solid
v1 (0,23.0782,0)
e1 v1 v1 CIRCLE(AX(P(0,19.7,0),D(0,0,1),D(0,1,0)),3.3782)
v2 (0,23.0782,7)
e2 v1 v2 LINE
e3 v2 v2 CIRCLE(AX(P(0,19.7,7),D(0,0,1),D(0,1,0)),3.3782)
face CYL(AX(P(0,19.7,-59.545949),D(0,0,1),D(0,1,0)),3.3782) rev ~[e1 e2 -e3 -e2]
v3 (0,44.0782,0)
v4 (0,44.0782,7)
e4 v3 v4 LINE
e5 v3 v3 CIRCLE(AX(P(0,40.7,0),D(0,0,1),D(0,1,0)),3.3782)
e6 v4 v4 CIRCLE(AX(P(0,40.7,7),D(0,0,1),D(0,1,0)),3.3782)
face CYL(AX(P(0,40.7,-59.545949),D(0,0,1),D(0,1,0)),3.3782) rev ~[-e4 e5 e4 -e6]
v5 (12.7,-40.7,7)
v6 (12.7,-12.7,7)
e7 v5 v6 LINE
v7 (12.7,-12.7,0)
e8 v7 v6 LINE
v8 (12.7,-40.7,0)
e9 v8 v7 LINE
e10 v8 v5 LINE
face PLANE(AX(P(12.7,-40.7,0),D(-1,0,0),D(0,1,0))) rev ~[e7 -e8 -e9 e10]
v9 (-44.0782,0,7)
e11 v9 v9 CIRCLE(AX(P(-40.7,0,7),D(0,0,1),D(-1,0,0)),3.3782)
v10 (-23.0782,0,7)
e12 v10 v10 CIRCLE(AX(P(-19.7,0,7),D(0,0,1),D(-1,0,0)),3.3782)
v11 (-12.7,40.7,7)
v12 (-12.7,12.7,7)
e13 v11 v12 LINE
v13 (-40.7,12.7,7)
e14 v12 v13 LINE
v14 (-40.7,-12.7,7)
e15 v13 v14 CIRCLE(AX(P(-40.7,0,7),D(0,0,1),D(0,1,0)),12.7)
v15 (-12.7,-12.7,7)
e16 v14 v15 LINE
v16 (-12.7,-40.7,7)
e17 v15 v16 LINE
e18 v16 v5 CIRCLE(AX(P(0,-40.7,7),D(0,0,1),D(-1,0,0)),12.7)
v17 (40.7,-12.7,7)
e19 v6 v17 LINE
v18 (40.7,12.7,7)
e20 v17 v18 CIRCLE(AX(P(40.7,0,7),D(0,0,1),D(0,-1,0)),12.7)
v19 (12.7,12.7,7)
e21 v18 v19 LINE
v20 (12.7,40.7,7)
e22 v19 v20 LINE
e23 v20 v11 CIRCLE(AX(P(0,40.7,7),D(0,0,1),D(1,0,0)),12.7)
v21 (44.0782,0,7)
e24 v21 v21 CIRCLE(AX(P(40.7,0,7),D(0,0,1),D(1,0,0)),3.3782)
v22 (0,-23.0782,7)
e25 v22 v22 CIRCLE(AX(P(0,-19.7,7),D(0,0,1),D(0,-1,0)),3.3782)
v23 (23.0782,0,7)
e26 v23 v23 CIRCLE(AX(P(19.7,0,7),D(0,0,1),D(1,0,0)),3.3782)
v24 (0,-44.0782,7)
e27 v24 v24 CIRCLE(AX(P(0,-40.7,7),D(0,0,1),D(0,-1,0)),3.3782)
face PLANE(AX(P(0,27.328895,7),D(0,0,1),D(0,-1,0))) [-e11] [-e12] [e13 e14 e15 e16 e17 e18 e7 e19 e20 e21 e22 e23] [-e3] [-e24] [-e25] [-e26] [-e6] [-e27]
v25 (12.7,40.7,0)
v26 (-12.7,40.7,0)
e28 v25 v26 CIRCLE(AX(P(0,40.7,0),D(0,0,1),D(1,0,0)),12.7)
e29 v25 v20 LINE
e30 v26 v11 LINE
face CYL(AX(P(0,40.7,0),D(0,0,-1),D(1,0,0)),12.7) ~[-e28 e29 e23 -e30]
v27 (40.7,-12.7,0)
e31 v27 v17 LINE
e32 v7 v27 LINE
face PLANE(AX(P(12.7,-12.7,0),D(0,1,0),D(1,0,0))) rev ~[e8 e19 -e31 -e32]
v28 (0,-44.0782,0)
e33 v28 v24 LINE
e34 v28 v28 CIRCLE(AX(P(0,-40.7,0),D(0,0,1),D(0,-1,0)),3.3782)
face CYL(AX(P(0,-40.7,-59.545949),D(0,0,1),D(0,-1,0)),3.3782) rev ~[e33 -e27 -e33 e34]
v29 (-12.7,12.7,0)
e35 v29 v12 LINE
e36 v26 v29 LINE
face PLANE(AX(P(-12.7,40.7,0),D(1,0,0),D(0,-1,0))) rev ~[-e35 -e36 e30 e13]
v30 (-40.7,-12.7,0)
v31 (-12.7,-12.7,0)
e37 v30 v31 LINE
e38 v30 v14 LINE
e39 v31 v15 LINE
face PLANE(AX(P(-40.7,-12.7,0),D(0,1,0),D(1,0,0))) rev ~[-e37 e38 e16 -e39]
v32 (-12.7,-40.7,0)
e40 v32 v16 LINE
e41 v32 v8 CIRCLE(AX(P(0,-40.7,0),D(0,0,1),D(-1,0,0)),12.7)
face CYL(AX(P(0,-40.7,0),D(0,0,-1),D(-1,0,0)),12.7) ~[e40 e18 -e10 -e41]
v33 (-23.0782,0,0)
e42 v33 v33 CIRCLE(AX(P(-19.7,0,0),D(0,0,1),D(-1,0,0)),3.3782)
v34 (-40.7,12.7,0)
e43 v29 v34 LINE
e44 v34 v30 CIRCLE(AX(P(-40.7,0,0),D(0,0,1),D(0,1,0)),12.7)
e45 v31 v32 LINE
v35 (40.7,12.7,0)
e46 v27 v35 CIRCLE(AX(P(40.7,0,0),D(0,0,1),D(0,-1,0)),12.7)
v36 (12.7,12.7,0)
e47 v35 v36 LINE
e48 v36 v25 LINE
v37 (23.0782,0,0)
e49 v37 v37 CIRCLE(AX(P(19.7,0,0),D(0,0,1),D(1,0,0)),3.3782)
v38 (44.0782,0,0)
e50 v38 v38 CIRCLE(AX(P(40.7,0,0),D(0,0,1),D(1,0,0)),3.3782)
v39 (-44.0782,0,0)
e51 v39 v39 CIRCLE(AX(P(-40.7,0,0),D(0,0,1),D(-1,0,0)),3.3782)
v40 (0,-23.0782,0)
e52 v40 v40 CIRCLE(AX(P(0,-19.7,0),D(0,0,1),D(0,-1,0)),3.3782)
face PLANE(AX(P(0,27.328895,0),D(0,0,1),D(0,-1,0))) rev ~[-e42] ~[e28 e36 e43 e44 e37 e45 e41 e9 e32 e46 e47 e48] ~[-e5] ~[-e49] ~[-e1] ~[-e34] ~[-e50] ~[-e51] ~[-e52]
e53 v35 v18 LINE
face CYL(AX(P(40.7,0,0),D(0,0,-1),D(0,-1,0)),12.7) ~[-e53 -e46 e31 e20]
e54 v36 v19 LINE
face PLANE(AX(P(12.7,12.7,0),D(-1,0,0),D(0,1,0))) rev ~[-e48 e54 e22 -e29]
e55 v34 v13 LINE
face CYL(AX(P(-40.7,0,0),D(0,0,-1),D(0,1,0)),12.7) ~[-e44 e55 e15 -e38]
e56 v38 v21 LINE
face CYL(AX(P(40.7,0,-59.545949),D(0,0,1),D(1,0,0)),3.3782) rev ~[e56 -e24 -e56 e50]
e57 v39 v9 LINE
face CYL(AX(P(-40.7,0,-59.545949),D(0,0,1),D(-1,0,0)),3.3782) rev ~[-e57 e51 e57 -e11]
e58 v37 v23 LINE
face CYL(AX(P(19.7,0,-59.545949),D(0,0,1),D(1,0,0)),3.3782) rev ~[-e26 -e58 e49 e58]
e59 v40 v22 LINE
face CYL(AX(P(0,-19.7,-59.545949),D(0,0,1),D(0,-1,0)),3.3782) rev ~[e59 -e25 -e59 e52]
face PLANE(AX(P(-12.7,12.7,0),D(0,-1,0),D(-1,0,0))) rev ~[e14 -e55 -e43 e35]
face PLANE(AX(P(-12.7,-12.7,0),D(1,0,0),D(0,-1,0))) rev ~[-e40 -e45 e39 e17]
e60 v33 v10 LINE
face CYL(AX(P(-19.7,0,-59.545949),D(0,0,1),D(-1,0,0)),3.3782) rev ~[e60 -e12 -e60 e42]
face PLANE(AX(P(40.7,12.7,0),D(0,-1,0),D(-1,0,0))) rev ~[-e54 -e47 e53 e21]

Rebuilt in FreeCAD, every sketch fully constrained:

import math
import FreeCAD as App
import Part
import Sketcher
from FreeCAD import Vector
Q = App.Units.Quantity

doc = App.newDocument("Part")
body = doc.addObject("PartDesign::Body", "Body")

# Sketch on XY plane
sketch1 = body.newObject("Sketcher::SketchObject", "Sketch")
sketch1.AttachmentSupport = (doc.getObject("XY_Plane"), [""])
sketch1.MapMode = "FlatFace"
sketch1.addGeometry(Part.ArcOfCircle(Part.Circle(Vector(-40.7, 0, 0), Vector(0, 0, 1), 12.7), math.radians(90), math.radians(270)), False)
sketch1.addGeometry(Part.LineSegment(Vector(-40.7, -12.7, 0), Vector(-12.7, -12.7, 0)), False)
sketch1.addGeometry(Part.LineSegment(Vector(-12.7, -12.7, 0), Vector(0, 0, 0)), False)
sketch1.addGeometry(Part.LineSegment(Vector(0, 0, 0), Vector(-12.7, 12.7, 0)), False)
sketch1.addGeometry(Part.LineSegment(Vector(-12.7, 12.7, 0), Vector(-40.7, 12.7, 0)), False)
sketch1.addConstraint(Sketcher.Constraint("Tangent", 0, 2, 1, 1))
sketch1.addConstraint(Sketcher.Constraint("Coincident", 1, 2, 2, 1))
sketch1.addConstraint(Sketcher.Constraint("Coincident", 2, 2, 3, 1))
sketch1.addConstraint(Sketcher.Constraint("Coincident", 3, 2, 4, 1))
sketch1.addConstraint(Sketcher.Constraint("Tangent", 4, 2, 0, 1))
sketch1.addConstraint(Sketcher.Constraint("Horizontal", 1))
sketch1.addConstraint(Sketcher.Constraint("Horizontal", 4))
sketch1.addConstraint(Sketcher.Constraint("Coincident", 2, 2, -1, 1))
sketch1.addConstraint(Sketcher.Constraint("Symmetric", 1, 2, 3, 2, -1))
sketch1.addConstraint(Sketcher.Constraint("Perpendicular", 2, 3))
sketch1.addConstraint(Sketcher.Constraint("Radius", 0, Q("12.7 mm")))
sketch1.addConstraint(Sketcher.Constraint("DistanceX", 1, 1, 1, 2, Q("28 mm")))
pad1 = body.newObject("PartDesign::Pad", "Pad")
pad1.Profile = sketch1
pad1.Length = 7

# Sketch on XY plane
sketch2 = body.newObject("Sketcher::SketchObject", "Sketch001")
sketch2.AttachmentSupport = (doc.getObject("XY_Plane"), [""])
sketch2.MapMode = "FlatFace"
sketch2.addGeometry(Part.Circle(Vector(-40.7, 0, 0), Vector(0, 0, 1), 3.3782), False)
sketch2.addGeometry(Part.Circle(Vector(-19.7, 0, 0), Vector(0, 0, 1), 3.3782), False)
sketch2.addConstraint(Sketcher.Constraint("Equal", 0, 1))
sketch2.addConstraint(Sketcher.Constraint("PointOnObject", 0, 3, -1))
sketch2.addConstraint(Sketcher.Constraint("PointOnObject", 1, 3, -1))
sketch2.addConstraint(Sketcher.Constraint("DistanceX", 0, 3, 1, 3, Q("21 mm")))
sketch2.addConstraint(Sketcher.Constraint("Diameter", 0, Q("6.7564 mm")))
sketch2.addConstraint(Sketcher.Constraint("DistanceX", 0, 3, -1, 1, Q("40.7 mm")))
doc.recompute()
hole = body.newObject("PartDesign::Hole", "Hole")
hole.Profile = sketch2
hole.ThreadType = "None"
hole.Diameter = 6.7564
hole.DepthType = "ThroughAll"
hole.Reversed = True
body2 = doc.addObject("PartDesign::Body", "Body001")
doc.recompute()

body2.BaseFeature = body
doc.recompute()

body3 = doc.addObject("PartDesign::Body", "Body002")
body3.BaseFeature = body
body3.Placement = App.Placement(Vector(0, 0, 0), App.Rotation(Vector(0, 0, 1), 90))
boolean = body2.newObject("PartDesign::Boolean", "Boolean")
boolean.Type = "Fuse"
boolean.addObjects([body3])
doc.recompute()

body4 = doc.addObject("PartDesign::Body", "Body003")
body4.BaseFeature = body
body4.Placement = App.Placement(Vector(0, 0, 0), App.Rotation(Vector(0, 0, 1), 180))
boolean2 = body2.newObject("PartDesign::Boolean", "Boolean001")
boolean2.Type = "Fuse"
boolean2.addObjects([body4])
doc.recompute()

body.Placement = App.Placement(Vector(0, 0, 0), App.Rotation(Vector(0, 0, 1), 270))
boolean3 = body2.newObject("PartDesign::Boolean", "Boolean002")
boolean3.Type = "Fuse"
boolean3.addObjects([body])

doc.recompute()
